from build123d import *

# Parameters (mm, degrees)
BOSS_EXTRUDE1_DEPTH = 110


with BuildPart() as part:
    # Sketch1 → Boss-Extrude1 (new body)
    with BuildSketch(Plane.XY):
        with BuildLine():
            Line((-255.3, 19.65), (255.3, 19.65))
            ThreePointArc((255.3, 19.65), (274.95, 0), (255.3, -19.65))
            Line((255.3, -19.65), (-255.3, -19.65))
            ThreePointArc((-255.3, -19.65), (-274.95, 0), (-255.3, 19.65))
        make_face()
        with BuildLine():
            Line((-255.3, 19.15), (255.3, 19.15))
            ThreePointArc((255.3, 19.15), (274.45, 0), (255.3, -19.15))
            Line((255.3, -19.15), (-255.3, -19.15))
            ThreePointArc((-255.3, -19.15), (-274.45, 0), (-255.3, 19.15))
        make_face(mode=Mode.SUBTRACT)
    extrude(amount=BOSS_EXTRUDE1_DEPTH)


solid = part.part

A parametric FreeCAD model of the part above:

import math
import FreeCAD as App
import Part
import Sketcher

doc = App.newDocument("Part")
body = doc.addObject("PartDesign::Body", "Body")

sketch1 = body.newObject("Sketcher::SketchObject", "Sketch")
sketch1.AttachmentSupport = (doc.getObject("XY_Plane"), [""])
sketch1.MapMode = "FlatFace"
sketch1.addGeometry(Part.LineSegment(App.Vector(255, 20, 0), App.Vector(-255, 20, 0)), False)
sketch1.addGeometry(Part.ArcOfCircle(Part.Circle(App.Vector(-255, 0, 0), App.Vector(0, 0, 1), 20), math.radians(90), math.radians(270)), False)
sketch1.addGeometry(Part.LineSegment(App.Vector(-255, -20, 0), App.Vector(255, -20, 0)), False)
sketch1.addGeometry(Part.ArcOfCircle(Part.Circle(App.Vector(255, 0, 0), App.Vector(0, 0, 1), 20), math.radians(-90), math.radians(90)), False)
sketch1.addGeometry(Part.LineSegment(App.Vector(-255, 19, 0), App.Vector(255, 19, 0)), False)
sketch1.addGeometry(Part.ArcOfCircle(Part.Circle(App.Vector(255, 0, 0), App.Vector(0, 0, 1), 19), math.radians(-90), math.radians(90)), False)
sketch1.addGeometry(Part.LineSegment(App.Vector(255, -19, 0), App.Vector(-255, -19, 0)), False)
sketch1.addGeometry(Part.ArcOfCircle(Part.Circle(App.Vector(-255, 0, 0), App.Vector(0, 0, 1), 19), math.radians(90), math.radians(270)), False)
sketch1.addConstraint(Sketcher.Constraint("Tangent", 0, 2, 1, 1))
sketch1.addConstraint(Sketcher.Constraint("Tangent", 1, 2, 2, 1))
sketch1.addConstraint(Sketcher.Constraint("Tangent", 2, 2, 3, 1))
sketch1.addConstraint(Sketcher.Constraint("Tangent", 3, 2, 0, 1))
sketch1.addConstraint(Sketcher.Constraint("Tangent", 4, 2, 5, 2))
sketch1.addConstraint(Sketcher.Constraint("Tangent", 5, 1, 6, 1))
sketch1.addConstraint(Sketcher.Constraint("Tangent", 6, 2, 7, 2))
sketch1.addConstraint(Sketcher.Constraint("Tangent", 7, 1, 4, 1))
sketch1.addConstraint(Sketcher.Constraint("Horizontal", 0))
sketch1.addConstraint(Sketcher.Constraint("Horizontal", 2))
sketch1.addConstraint(Sketcher.Constraint("Horizontal", 4))
sketch1.addConstraint(Sketcher.Constraint("Horizontal", 6))
sketch1.addConstraint(Sketcher.Constraint("Coincident", 5, 3, 3, 3))
sketch1.addConstraint(Sketcher.Constraint("Symmetric", 1, 3, 3, 3, -1, 1))
sketch1.addConstraint(Sketcher.Constraint("Vertical", 7, 3, 0, 2))
sketch1.addConstraint(Sketcher.Constraint("Radius", 1, 19.65))
sketch1.addConstraint(Sketcher.Constraint("Radius", 5, 19.15))
sketch1.addConstraint(Sketcher.Constraint("DistanceX", 0, 2, 0, 1, 510.6))
pad1 = body.newObject("PartDesign::Pad", "Pad")
pad1.Profile = sketch1
pad1.Length = 110

doc.recompute()
